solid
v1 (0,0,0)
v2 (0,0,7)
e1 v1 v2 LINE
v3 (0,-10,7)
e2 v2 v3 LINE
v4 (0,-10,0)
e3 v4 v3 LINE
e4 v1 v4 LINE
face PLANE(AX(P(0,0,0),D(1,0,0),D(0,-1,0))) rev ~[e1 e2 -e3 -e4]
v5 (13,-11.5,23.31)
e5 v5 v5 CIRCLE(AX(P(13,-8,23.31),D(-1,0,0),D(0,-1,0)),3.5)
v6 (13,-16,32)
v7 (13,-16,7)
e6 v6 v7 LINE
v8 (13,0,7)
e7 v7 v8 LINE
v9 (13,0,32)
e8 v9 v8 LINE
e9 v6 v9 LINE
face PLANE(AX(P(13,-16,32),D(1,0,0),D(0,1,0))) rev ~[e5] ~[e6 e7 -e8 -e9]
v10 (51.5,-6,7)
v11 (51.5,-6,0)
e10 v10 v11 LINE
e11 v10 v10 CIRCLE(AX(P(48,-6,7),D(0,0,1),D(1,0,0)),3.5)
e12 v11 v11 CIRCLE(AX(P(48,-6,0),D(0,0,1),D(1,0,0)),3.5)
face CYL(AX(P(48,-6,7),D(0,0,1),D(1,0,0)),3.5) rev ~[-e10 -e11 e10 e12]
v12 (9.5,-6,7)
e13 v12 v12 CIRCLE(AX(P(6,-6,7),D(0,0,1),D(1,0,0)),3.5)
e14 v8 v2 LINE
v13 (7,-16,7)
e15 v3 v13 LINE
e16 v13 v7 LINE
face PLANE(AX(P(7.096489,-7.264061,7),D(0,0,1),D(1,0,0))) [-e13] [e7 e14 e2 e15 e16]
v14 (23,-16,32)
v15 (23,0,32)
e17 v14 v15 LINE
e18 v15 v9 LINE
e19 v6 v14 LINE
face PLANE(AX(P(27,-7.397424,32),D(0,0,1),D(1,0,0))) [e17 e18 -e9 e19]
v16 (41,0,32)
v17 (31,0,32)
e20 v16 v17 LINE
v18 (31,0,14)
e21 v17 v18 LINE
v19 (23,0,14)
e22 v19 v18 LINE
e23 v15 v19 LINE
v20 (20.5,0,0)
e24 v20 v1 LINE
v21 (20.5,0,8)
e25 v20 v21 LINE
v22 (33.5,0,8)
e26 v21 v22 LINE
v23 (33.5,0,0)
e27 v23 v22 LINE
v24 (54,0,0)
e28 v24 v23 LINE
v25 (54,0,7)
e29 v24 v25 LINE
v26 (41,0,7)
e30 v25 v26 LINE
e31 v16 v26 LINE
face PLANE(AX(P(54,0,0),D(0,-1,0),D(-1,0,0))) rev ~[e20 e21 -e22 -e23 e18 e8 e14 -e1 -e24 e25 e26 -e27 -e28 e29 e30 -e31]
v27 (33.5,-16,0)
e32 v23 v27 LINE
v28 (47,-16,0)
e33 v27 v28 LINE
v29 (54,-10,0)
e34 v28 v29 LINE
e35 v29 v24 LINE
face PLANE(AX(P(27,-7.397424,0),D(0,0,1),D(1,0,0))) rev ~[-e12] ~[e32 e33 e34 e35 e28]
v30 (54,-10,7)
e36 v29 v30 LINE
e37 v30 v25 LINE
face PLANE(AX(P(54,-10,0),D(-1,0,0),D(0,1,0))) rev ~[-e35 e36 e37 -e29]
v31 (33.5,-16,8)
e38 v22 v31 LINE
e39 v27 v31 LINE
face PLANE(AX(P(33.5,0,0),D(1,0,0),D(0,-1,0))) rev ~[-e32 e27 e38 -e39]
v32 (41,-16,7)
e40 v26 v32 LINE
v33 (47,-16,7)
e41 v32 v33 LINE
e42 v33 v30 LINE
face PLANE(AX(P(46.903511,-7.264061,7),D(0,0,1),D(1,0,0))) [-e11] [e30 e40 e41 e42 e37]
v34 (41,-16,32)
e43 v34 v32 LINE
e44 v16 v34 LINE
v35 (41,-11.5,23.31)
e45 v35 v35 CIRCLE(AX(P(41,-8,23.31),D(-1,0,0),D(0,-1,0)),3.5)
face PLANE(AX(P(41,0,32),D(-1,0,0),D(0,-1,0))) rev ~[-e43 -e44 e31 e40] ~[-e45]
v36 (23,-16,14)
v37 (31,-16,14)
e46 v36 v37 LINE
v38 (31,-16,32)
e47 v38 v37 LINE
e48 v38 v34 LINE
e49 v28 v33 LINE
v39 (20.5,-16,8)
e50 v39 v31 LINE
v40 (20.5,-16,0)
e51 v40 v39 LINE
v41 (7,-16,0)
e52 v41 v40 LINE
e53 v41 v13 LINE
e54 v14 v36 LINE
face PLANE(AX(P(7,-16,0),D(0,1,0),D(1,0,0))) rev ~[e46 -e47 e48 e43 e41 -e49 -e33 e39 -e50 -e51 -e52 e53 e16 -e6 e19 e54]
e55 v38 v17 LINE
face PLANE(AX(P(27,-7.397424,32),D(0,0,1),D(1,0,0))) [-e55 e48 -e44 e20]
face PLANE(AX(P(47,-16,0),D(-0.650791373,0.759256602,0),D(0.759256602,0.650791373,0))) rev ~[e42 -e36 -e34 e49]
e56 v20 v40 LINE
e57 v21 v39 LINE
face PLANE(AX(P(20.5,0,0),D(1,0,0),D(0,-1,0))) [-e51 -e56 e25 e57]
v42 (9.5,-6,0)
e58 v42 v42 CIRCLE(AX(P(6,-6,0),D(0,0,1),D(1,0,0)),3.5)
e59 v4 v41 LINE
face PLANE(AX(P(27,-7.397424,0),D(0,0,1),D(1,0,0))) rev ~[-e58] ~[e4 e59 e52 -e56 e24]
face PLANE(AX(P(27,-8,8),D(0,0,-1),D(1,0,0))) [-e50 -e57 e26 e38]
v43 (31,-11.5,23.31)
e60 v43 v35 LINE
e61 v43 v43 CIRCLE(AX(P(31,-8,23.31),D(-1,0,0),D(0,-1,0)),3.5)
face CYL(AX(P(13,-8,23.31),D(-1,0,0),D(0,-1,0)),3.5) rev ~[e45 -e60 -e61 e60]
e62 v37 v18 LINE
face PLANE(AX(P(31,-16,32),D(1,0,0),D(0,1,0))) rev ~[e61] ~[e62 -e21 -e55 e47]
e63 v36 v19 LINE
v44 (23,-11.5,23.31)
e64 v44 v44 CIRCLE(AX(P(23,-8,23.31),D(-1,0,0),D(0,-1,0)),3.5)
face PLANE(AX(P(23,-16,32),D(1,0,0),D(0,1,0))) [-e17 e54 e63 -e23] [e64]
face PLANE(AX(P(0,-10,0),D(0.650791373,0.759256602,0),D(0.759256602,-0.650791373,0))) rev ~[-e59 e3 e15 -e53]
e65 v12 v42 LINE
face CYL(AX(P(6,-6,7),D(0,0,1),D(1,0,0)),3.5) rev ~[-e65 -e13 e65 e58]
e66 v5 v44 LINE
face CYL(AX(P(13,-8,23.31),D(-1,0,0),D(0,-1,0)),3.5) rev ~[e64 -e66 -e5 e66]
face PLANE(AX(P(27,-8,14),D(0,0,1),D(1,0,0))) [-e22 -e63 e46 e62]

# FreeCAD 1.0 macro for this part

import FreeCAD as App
import Part
import Sketcher
from FreeCAD import Vector


def add_polygon(sketch, points):
    """Adds a closed chain of lines whose ends are joined by coincident constraints."""
    first, n = sketch.GeometryCount, len(points)
    for a, b in zip(points, points[1:] + points[:1]):
        sketch.addGeometry(Part.LineSegment(App.Vector(*a, 0), App.Vector(*b, 0)), False)
    for i in range(n):
        sketch.addConstraint(Sketcher.Constraint("Coincident", first + i, 2, first + (i + 1) % n, 1))

doc = App.newDocument("Part")
body = doc.addObject("PartDesign::Body", "Body")

sketch1 = body.newObject("Sketcher::SketchObject", "Sketch")
sketch1.AttachmentSupport = (doc.getObject("XY_Plane"), [""])
sketch1.MapMode = "FlatFace"
add_polygon(sketch1, [(0, 0), (0, -10), (7, -16), (47, -16), (54, -10), (54, 0)])
sketch1.addConstraint(Sketcher.Constraint("Vertical", 0))
sketch1.addConstraint(Sketcher.Constraint("Horizontal", 2))
sketch1.addConstraint(Sketcher.Constraint("Vertical", 4))
sketch1.addConstraint(Sketcher.Constraint("Horizontal", 5))
sketch1.addConstraint(Sketcher.Constraint("Coincident", 5, 2, -1, 1))
sketch1.addConstraint(Sketcher.Constraint("Horizontal", 0, 2, 3, 2))
sketch1.addConstraint(Sketcher.Constraint("Equal", 1, 3))
sketch1.addConstraint(Sketcher.Constraint("DistanceX", 2, 1, 2, 2, 40.0))
sketch1.addConstraint(Sketcher.Constraint("DistanceX", 5, 2, 5, 1, 54.0))
sketch1.addConstraint(Sketcher.Constraint("DistanceY", 0, 2, 0, 1, 10.0))
sketch1.addConstraint(Sketcher.Constraint("DistanceY", 1, 2, -1, 1, 16.0))
pad1 = body.newObject("PartDesign::Pad", "Pad")
pad1.Profile = sketch1
pad1.Length = 32

sketch2 = body.newObject("Sketcher::SketchObject", "Sketch001")
sketch2.AttachmentSupport = (doc.getObject("XY_Plane"), [""])
sketch2.MapMode = "FlatFace"
add_polygon(sketch2, [(20.5, -16), (20.5, 0), (33.5, 0), (33.5, -16)])
sketch2.addConstraint(Sketcher.Constraint("Vertical", 0))
sketch2.addConstraint(Sketcher.Constraint("Horizontal", 1))
sketch2.addConstraint(Sketcher.Constraint("Vertical", 2))
sketch2.addConstraint(Sketcher.Constraint("Horizontal", 3))
sketch2.addConstraint(Sketcher.Constraint("PointOnObject", 0, 2, -1))
sketch2.addConstraint(Sketcher.Constraint("DistanceX", 1, 1, 1, 2, 13.0))
sketch2.addConstraint(Sketcher.Constraint("DistanceY", 0, 1, 0, 2, 16.0))
sketch2.addConstraint(Sketcher.Constraint("DistanceX", -1, 1, 0, 2, 20.5))
pocket1 = body.newObject("PartDesign::Pocket", "Pocket")
pocket1.Profile = sketch2
pocket1.Length = 8
pocket1.Reversed = True

sketch3 = body.newObject("Sketcher::SketchObject", "Sketch002")
sketch3.AttachmentSupport = (doc.getObject("XY_Plane"), [""])
sketch3.MapMode = "FlatFace"
sketch3.AttachmentOffset = App.Placement(Vector(0, 0, 32), App.Rotation())
add_polygon(sketch3, [(0, 0), (0, -10), (7, -16), (13, -16), (13, 0)])
sketch3.addConstraint(Sketcher.Constraint("Vertical", 0))
sketch3.addConstraint(Sketcher.Constraint("Horizontal", 2))
sketch3.addConstraint(Sketcher.Constraint("Vertical", 3))
sketch3.addConstraint(Sketcher.Constraint("Horizontal", 4))
sketch3.addConstraint(Sketcher.Constraint("Coincident", 4, 2, -1, 1))
sketch3.addConstraint(Sketcher.Constraint("DistanceX", 2, 1, 2, 2, 6.0))
sketch3.addConstraint(Sketcher.Constraint("DistanceX", 4, 2, 4, 1, 13.0))
sketch3.addConstraint(Sketcher.Constraint("DistanceY", 0, 2, 0, 1, 10.0))
sketch3.addConstraint(Sketcher.Constraint("DistanceY", 3, 1, 3, 2, 16.0))
pocket2 = body.newObject("PartDesign::Pocket", "Pocket001")
pocket2.Profile = sketch3
pocket2.Length = 25

sketch4 = body.newObject("Sketcher::SketchObject", "Sketch003")
sketch4.AttachmentSupport = (doc.getObject("XY_Plane"), [""])
sketch4.MapMode = "FlatFace"
sketch4.AttachmentOffset = App.Placement(Vector(0, 0, 32), App.Rotation())
add_polygon(sketch4, [(54, 0), (41, 0), (41, -16), (47, -16), (54, -10)])
sketch4.addConstraint(Sketcher.Constraint("Horizontal", 0))
sketch4.addConstraint(Sketcher.Constraint("Vertical", 1))
sketch4.addConstraint(Sketcher.Constraint("Horizontal", 2))
sketch4.addConstraint(Sketcher.Constraint("Vertical", 4))
sketch4.addConstraint(Sketcher.Constraint("PointOnObject", 0, 2, -1))
sketch4.addConstraint(Sketcher.Constraint("DistanceX", 0, 2, 0, 1, 13.0))
sketch4.addConstraint(Sketcher.Constraint("DistanceX", 2, 1, 2, 2, 6.0))
sketch4.addConstraint(Sketcher.Constraint("DistanceY", 1, 2, 1, 1, 16.0))
sketch4.addConstraint(Sketcher.Constraint("DistanceY", 4, 1, 4, 2, 10.0))
sketch4.addConstraint(Sketcher.Constraint("DistanceX", -1, 1, 0, 2, 41.0))
pocket3 = body.newObject("PartDesign::Pocket", "Pocket002")
pocket3.Profile = sketch4
pocket3.Length = 25

sketch5 = body.newObject("Sketcher::SketchObject", "Sketch004")
sketch5.AttachmentSupport = (doc.getObject("XY_Plane"), [""])
sketch5.MapMode = "FlatFace"
sketch5.AttachmentOffset = App.Placement(Vector(0, 0, 32), App.Rotation())
add_polygon(sketch5, [(23, 0), (23, -16), (31, -16), (31, 0)])
sketch5.addConstraint(Sketcher.Constraint("Vertical", 0))
sketch5.addConstraint(Sketcher.Constraint("Horizontal", 1))
sketch5.addConstraint(Sketcher.Constraint("Vertical", 2))
sketch5.addConstraint(Sketcher.Constraint("Horizontal", 3))
sketch5.addConstraint(Sketcher.Constraint("PointOnObject", 2, 2, -1))
sketch5.addConstraint(Sketcher.Constraint("DistanceX", 1, 1, 1, 2, 8.0))
sketch5.addConstraint(Sketcher.Constraint("DistanceY", 0, 2, 0, 1, 16.0))
sketch5.addConstraint(Sketcher.Constraint("DistanceX", -1, 1, 0, 2, 23.0))
pocket4 = body.newObject("PartDesign::Pocket", "Pocket003")
pocket4.Profile = sketch5
pocket4.Length = 18

sketch6 = body.newObject("Sketcher::SketchObject", "Sketch005")
sketch6.AttachmentSupport = (doc.getObject("XY_Plane"), [""])
sketch6.MapMode = "FlatFace"
sketch6.AttachmentOffset = App.Placement(Vector(0, 0, 7), App.Rotation())
sketch6.addGeometry(Part.Circle(Vector(6, -6, 0), Vector(0, 0, 1), 3.5), False)
sketch6.addGeometry(Part.Circle(Vector(48, -6, 0), Vector(0, 0, 1), 3.5), False)
sketch6.addConstraint(Sketcher.Constraint("Equal", 0, 1))
sketch6.addConstraint(Sketcher.Constraint("Horizontal", 0, 3, 1, 3))
sketch6.addConstraint(Sketcher.Constraint("Diameter", 0, 7.0))
sketch6.addConstraint(Sketcher.Constraint("DistanceX", -1, 1, 0, 3, 6.0))
sketch6.addConstraint(Sketcher.Constraint("DistanceY", 0, 3, -1, 1, 6.0))
sketch6.addConstraint(Sketcher.Constraint("DistanceX", -1, 1, 1, 3, 48.0))
pocket5 = body.newObject("PartDesign::Pocket", "Pocket004")
pocket5.Profile = sketch6
pocket5.Length = 8

sketch7 = body.newObject("Sketcher::SketchObject", "Sketch006")
sketch7.AttachmentSupport = (doc.getObject("YZ_Plane"), [""])
sketch7.MapMode = "FlatFace"
sketch7.AttachmentOffset = App.Placement(Vector(0, 0, 13), App.Rotation())
sketch7.addGeometry(Part.Circle(Vector(-8, 23.31, 0), Vector(0, 0, 1), 3.5), False)
sketch7.addConstraint(Sketcher.Constraint("Diameter", 0, 7.0))
sketch7.addConstraint(Sketcher.Constraint("DistanceX", 0, 3, -1, 1, 8.0))
sketch7.addConstraint(Sketcher.Constraint("DistanceY", -1, 1, 0, 3, 23.31))
pocket6 = body.newObject("PartDesign::Pocket", "Pocket005")
pocket6.Profile = sketch7
pocket6.Length = 30
pocket6.Reversed = True

doc.recompute()
